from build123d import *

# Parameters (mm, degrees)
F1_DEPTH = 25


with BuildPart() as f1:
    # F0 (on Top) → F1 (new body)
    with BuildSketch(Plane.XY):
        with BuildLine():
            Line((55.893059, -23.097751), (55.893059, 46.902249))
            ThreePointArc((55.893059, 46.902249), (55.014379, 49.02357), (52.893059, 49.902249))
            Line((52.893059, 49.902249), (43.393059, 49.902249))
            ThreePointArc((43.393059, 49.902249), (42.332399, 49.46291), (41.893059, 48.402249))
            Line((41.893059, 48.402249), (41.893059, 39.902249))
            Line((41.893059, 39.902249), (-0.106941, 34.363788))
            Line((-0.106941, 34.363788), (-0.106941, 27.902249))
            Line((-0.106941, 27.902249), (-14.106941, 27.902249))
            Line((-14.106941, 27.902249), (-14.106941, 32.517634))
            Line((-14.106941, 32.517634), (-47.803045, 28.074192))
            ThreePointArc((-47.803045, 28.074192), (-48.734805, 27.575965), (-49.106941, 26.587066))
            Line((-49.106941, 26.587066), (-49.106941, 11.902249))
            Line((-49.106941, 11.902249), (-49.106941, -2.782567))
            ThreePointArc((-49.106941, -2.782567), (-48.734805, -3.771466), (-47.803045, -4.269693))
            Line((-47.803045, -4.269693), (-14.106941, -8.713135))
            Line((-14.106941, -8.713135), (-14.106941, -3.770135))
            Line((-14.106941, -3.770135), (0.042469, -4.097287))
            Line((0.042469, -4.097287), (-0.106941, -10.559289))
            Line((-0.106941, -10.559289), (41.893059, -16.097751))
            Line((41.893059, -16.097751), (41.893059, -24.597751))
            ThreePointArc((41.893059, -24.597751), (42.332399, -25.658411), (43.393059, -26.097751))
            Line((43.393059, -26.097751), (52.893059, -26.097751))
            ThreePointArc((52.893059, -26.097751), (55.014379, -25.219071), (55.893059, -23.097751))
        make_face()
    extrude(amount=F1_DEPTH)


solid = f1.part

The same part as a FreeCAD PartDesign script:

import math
import FreeCAD as App
import Part
import Sketcher
from FreeCAD import Vector

doc = App.newDocument("Part")
params = doc.addObject("Spreadsheet::Sheet", "Params")
for row, (alias, value) in enumerate([
    ("sketch1_radius", "2.999999 mm"),
    ("sketch1_radius2", "1.499999 mm"),
    ("sketch1_width", "14 mm"),
    ("sketch1_height", "70 mm"),
    ("sketch1_width2", "9.5 mm"),
    ("pad1_length", "25 mm"),
], start=1):
    params.set(f"A{row}", alias)
    params.set(f"B{row}", "=" + value)
    params.setAlias(f"B{row}", alias)

body = doc.addObject("PartDesign::Body", "Body")

sketch1 = body.newObject("Sketcher::SketchObject", "Sketch")
sketch1.AttachmentSupport = (doc.getObject("XY_Plane"), [""])
sketch1.MapMode = "FlatFace"
sketch1.addGeometry([
    Part.LineSegment(Vector(55.9, -23.1, 0), Vector(55.9, 46.9, 0)),
    Part.ArcOfCircle(Part.Circle(Vector(52.9, 46.9, 0), Vector(0, 0, 1), 3), math.radians(0), math.radians(90)),
    Part.LineSegment(Vector(52.9, 49.9, 0), Vector(43.4, 49.9, 0)),
    Part.ArcOfCircle(Part.Circle(Vector(43.4, 48.4, 0), Vector(0, 0, 1), 1.5), math.radians(90), math.radians(180)),
    Part.LineSegment(Vector(41.9, 48.4, 0), Vector(41.9, 39.9, 0)),
    Part.LineSegment(Vector(41.9, 39.9, 0), Vector(-0.1, 34.4, 0)),
    Part.LineSegment(Vector(-0.1, 34.4, 0), Vector(-0.1, 27.9, 0)),
    Part.LineSegment(Vector(-0.1, 27.9, 0), Vector(-14.1, 27.9, 0)),
    Part.LineSegment(Vector(-14.1, 27.9, 0), Vector(-14.1, 32.5, 0)),
    Part.LineSegment(Vector(-14.1, 32.5, 0), Vector(-47.8, 28.1, 0)),
    Part.ArcOfCircle(Part.Circle(Vector(-47.6, 26.6, 0), Vector(0, 0, 1), 1.5), math.radians(98), math.radians(180)),
    Part.LineSegment(Vector(-49.1, 26.6, 0), Vector(-49.1, -2.8, 0)),
    Part.ArcOfCircle(Part.Circle(Vector(-47.6, -2.8, 0), Vector(0, 0, 1), 1.5), math.radians(-180), math.radians(-98)),
    Part.LineSegment(Vector(-47.8, -4.3, 0), Vector(-14.1, -8.7, 0)),
    Part.LineSegment(Vector(-14.1, -8.7, 0), Vector(-14.1, -3.8, 0)),
    Part.LineSegment(Vector(-14.1, -3.8, 0), Vector(0, -4.1, 0)),
    Part.LineSegment(Vector(0, -4.1, 0), Vector(-0.1, -10.6, 0)),
    Part.LineSegment(Vector(-0.1, -10.6, 0), Vector(41.9, -16.1, 0)),
    Part.LineSegment(Vector(41.9, -16.1, 0), Vector(41.9, -24.6, 0)),
    Part.ArcOfCircle(Part.Circle(Vector(43.4, -24.6, 0), Vector(0, 0, 1), 1.5), math.radians(-180), math.radians(-90)),
    Part.LineSegment(Vector(43.4, -26.1, 0), Vector(52.9, -26.1, 0)),
    Part.ArcOfCircle(Part.Circle(Vector(52.9, -23.1, 0), Vector(0, 0, 1), 3), math.radians(-90), math.radians(0)),
], False)
sketch1.addConstraint([
    Sketcher.Constraint("Tangent", 0, 2, 1, 1),
    Sketcher.Constraint("Tangent", 1, 2, 2, 1),
    Sketcher.Constraint("Tangent", 2, 2, 3, 1),
    Sketcher.Constraint("Tangent", 3, 2, 4, 1),
    Sketcher.Constraint("Coincident", 4, 2, 5, 1),
    Sketcher.Constraint("Coincident", 5, 2, 6, 1),
    Sketcher.Constraint("Coincident", 6, 2, 7, 1),
    Sketcher.Constraint("Coincident", 7, 2, 8, 1),
    Sketcher.Constraint("Coincident", 8, 2, 9, 1),
    Sketcher.Constraint("Tangent", 9, 2, 10, 1),
    Sketcher.Constraint("Tangent", 10, 2, 11, 1),
    Sketcher.Constraint("Tangent", 11, 2, 12, 1),
    Sketcher.Constraint("Tangent", 12, 2, 13, 1),
    Sketcher.Constraint("Coincident", 13, 2, 14, 1),
    Sketcher.Constraint("Coincident", 14, 2, 15, 1),
    Sketcher.Constraint("Coincident", 15, 2, 16, 1),
    Sketcher.Constraint("Coincident", 16, 2, 17, 1),
    Sketcher.Constraint("Coincident", 17, 2, 18, 1),
    Sketcher.Constraint("Tangent", 18, 2, 19, 1),
    Sketcher.Constraint("Tangent", 19, 2, 20, 1),
    Sketcher.Constraint("Tangent", 20, 2, 21, 1),
    Sketcher.Constraint("Tangent", 21, 2, 0, 1),
    Sketcher.Constraint("Vertical", 0),
    Sketcher.Constraint("Horizontal", 2),
    Sketcher.Constraint("Vertical", 4),
    Sketcher.Constraint("Vertical", 6),
    Sketcher.Constraint("Horizontal", 7),
    Sketcher.Constraint("Vertical", 8),
    Sketcher.Constraint("Vertical", 11),
    Sketcher.Constraint("Vertical", 14),
    Sketcher.Constraint("Vertical", 18),
    Sketcher.Constraint("Horizontal", 20),
    Sketcher.Constraint("Equal", 10, 12),
    Sketcher.Constraint("Equal", 12, 19),
    Sketcher.Constraint("Equal", 1, 21),
    Sketcher.Constraint("Parallel", 5, 9),
    Sketcher.Constraint("Perpendicular", 15, 16),
    Sketcher.Constraint("Parallel", 13, 17),
    Sketcher.Constraint("Vertical", 3, 3, 19, 3),
    Sketcher.Constraint("Vertical", 9, 2, 12, 2),
    Sketcher.Constraint("Vertical", 8, 2, 13, 2),
    Sketcher.Constraint("Vertical", 6, 2, 16, 2),
    Sketcher.Constraint("Vertical", 4, 2, 17, 2),
    Sketcher.Constraint("Equal", 4, 18),
    Sketcher.Constraint("Radius", 1, 2.999999),
    Sketcher.Constraint("Radius", 3, 1.499999),
    Sketcher.Constraint("DistanceX", 7, 2, 7, 1, 14.0),
    Sketcher.Constraint("DistanceY", 0, 1, 0, 2, 70.0),
    Sketcher.Constraint("DistanceX", 2, 2, 2, 1, 9.5),
    Sketcher.Constraint("DistanceY", 4, 2, 4, 1, 8.5),
    Sketcher.Constraint("DistanceX", 12, 3, 19, 3, 90.999999),
    Sketcher.Constraint("DistanceX", 5, 2, 4, 2, 42.0),
    Sketcher.Constraint("DistanceY", 6, 2, 4, 2, 12.0),
    Sketcher.Constraint("DistanceY", 14, 1, 14, 2, 4.943),
    Sketcher.Constraint("Distance", 5, 42.363599),
    Sketcher.Constraint("DistanceY", 12, 3, 8, 2, 35.300199),
    Sketcher.Constraint("Distance", 15, 14.153192),
    Sketcher.Constraint("Distance", 16, 6.463729),
    Sketcher.Constraint("DistanceX", -1, 1, 1, 3, 52.89306),
    Sketcher.Constraint("DistanceY", -1, 1, 1, 3, 46.90225),
])
sketch1.setExpression("Constraints[44]", "Params.sketch1_radius")
sketch1.setExpression("Constraints[45]", "Params.sketch1_radius2")
sketch1.setExpression("Constraints[46]", "Params.sketch1_width")
sketch1.setExpression("Constraints[47]", "Params.sketch1_height")
sketch1.setExpression("Constraints[48]", "Params.sketch1_width2")
pad1 = body.newObject("PartDesign::Pad", "Pad")
pad1.Profile = sketch1
pad1.setExpression("Length", "Params.pad1_length")

doc.recompute()
